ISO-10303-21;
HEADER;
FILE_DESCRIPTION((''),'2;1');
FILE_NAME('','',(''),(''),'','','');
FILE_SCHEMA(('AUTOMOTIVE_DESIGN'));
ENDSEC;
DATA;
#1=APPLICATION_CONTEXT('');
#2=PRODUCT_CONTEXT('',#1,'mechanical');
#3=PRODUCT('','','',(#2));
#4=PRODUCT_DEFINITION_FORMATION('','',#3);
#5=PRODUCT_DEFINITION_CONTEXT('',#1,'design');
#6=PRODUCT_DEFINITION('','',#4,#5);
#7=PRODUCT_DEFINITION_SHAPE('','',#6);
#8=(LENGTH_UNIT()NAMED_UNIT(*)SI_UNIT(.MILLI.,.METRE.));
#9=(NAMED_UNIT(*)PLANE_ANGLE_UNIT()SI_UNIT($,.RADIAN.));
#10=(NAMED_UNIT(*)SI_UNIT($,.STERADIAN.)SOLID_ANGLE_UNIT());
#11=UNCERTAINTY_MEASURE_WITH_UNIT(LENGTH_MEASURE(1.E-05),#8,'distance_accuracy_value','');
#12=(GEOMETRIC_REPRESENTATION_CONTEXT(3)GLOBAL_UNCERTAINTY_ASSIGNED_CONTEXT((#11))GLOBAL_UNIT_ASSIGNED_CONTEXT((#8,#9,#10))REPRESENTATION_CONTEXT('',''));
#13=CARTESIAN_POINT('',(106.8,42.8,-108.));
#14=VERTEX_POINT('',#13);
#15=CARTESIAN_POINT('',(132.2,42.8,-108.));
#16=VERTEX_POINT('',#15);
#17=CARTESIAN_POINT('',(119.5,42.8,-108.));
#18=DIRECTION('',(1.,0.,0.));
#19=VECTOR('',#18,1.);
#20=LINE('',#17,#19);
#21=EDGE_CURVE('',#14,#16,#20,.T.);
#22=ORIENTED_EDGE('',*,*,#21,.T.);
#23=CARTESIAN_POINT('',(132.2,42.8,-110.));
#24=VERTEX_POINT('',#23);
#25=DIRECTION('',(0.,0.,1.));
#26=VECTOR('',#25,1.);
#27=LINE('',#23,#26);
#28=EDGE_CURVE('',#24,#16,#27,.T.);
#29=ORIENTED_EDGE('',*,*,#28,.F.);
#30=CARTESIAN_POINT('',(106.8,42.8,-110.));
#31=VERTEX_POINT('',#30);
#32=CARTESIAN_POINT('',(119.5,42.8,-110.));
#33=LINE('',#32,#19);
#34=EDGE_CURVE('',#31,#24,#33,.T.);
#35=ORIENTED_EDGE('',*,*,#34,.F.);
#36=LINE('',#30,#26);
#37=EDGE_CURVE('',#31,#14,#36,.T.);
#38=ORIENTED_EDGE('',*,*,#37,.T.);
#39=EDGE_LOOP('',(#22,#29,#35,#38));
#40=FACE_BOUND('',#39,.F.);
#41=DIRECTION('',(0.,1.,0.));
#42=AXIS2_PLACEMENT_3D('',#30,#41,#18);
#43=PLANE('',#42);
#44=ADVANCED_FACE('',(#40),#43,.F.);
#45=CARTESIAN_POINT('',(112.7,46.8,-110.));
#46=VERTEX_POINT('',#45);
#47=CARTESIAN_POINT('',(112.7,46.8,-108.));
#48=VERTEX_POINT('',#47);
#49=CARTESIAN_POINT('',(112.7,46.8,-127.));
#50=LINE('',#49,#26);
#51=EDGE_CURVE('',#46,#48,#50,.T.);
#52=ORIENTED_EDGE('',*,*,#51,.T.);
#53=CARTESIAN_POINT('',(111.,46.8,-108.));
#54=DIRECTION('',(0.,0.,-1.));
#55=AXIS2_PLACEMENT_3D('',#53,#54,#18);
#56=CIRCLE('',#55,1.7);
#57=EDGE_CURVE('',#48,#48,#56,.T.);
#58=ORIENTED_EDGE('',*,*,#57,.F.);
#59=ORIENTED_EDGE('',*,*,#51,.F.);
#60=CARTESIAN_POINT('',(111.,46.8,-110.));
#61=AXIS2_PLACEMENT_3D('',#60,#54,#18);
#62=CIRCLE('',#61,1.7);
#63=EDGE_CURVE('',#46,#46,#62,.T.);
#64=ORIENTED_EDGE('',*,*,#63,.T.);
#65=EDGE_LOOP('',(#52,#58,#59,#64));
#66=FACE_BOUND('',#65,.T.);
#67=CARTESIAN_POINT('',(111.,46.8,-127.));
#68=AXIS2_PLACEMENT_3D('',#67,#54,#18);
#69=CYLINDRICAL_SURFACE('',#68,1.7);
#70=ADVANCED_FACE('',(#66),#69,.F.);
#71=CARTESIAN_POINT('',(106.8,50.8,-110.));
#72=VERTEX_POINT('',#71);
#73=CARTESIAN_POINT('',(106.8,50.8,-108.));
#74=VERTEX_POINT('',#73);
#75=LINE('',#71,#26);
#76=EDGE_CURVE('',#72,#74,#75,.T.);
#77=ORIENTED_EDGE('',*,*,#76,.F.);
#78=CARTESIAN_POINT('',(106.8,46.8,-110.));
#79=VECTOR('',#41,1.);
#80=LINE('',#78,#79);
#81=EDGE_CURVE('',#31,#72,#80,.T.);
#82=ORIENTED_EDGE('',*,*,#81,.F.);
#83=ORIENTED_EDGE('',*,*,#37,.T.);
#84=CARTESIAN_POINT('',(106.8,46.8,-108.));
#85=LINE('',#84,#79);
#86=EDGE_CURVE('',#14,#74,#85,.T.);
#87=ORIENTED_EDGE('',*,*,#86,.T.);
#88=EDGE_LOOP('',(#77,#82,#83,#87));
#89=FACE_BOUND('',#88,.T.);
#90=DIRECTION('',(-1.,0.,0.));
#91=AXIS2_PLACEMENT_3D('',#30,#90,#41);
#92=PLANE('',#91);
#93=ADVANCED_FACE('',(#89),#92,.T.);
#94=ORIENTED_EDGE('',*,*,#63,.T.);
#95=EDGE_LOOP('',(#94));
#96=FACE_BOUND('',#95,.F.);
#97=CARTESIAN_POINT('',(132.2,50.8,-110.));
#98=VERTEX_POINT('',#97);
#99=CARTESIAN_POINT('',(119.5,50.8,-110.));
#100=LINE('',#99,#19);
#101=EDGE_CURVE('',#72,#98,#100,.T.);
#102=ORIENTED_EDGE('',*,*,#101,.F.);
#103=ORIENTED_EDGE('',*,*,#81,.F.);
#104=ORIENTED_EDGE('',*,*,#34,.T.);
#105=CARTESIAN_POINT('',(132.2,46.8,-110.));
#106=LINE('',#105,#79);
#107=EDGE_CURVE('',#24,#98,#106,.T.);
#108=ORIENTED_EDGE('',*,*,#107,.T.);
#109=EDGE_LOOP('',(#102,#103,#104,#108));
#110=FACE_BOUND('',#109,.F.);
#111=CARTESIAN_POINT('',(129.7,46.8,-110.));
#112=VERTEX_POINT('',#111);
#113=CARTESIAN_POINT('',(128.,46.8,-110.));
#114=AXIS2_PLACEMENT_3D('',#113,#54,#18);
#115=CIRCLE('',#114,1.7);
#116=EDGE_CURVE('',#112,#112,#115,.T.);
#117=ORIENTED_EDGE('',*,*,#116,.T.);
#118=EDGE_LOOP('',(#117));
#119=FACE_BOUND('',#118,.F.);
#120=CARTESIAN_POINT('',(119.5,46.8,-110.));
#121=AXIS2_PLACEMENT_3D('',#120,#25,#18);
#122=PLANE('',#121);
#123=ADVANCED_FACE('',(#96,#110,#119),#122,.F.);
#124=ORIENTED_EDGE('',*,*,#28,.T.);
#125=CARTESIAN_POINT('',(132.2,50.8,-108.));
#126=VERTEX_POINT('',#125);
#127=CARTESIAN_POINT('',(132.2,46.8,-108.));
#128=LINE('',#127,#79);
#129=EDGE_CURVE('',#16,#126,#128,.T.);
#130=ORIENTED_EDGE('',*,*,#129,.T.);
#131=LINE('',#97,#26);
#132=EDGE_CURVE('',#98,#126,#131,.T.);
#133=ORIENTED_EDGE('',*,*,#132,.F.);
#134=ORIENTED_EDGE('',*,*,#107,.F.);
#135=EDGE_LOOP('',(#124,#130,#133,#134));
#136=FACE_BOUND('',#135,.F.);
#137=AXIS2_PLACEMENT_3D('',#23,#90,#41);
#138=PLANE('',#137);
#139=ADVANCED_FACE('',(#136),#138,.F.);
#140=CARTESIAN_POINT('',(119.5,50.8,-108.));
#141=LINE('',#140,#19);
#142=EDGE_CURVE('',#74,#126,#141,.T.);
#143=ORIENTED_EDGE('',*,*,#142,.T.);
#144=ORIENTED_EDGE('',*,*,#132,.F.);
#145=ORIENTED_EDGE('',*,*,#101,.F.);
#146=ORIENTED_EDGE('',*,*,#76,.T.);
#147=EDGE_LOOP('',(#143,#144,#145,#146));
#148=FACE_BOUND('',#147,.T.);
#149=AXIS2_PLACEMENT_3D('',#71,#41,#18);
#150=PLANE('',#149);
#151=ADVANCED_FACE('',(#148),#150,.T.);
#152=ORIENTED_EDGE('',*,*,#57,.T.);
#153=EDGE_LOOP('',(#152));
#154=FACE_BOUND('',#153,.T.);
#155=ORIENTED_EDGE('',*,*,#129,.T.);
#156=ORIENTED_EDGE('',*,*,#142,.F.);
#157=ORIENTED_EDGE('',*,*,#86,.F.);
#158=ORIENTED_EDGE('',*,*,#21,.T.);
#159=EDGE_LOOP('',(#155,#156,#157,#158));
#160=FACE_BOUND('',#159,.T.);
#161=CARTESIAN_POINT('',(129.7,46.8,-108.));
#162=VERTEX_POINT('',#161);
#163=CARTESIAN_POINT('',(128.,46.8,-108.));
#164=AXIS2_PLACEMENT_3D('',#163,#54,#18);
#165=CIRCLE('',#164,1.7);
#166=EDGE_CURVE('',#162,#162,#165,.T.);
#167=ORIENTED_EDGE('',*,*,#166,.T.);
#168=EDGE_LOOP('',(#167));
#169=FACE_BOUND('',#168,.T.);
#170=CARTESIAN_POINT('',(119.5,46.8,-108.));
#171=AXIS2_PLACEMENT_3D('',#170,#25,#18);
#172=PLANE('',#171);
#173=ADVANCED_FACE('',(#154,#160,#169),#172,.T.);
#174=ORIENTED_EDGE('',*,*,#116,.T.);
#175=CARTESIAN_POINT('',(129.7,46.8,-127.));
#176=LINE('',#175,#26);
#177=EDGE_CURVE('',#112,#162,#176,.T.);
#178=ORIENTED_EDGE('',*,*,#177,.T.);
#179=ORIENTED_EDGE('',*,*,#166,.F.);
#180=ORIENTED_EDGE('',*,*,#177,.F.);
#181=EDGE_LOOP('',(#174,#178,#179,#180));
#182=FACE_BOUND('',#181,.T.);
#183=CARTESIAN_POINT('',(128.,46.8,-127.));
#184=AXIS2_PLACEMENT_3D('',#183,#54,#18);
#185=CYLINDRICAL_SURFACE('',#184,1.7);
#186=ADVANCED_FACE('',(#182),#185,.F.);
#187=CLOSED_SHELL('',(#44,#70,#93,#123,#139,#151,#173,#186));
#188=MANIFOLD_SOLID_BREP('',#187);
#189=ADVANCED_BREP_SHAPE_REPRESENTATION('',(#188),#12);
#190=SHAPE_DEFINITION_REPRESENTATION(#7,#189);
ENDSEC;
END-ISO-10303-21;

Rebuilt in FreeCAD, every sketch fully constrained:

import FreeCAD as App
import Part
import Sketcher

V = App.Vector


def add_polygon(sketch, points):
    """Adds a closed chain of lines whose ends are joined by coincident constraints."""
    first, n = sketch.GeometryCount, len(points)
    for a, b in zip(points, points[1:] + points[:1]):
        sketch.addGeometry(Part.LineSegment(App.Vector(*a, 0), App.Vector(*b, 0)), False)
    for i in range(n):
        sketch.addConstraint(Sketcher.Constraint("Coincident", first + i, 2, first + (i + 1) % n, 1))

doc = App.newDocument("Part")
body = doc.addObject("PartDesign::Body", "Body")

sketch1 = body.newObject("Sketcher::SketchObject", "Sketch")
sketch1.AttachmentSupport = (doc.getObject("XY_Plane"), [""])
sketch1.MapMode = "FlatFace"
sketch1.AttachmentOffset = App.Placement(V(0, 0, -127), App.Rotation())
sketch1.addGeometry(Part.Circle(V(128, 46.8, 0), V(0, 0, 1), 1.7), False)
sketch1.addConstraint(Sketcher.Constraint("Diameter", 0, 3.4))
sketch1.addConstraint(Sketcher.Constraint("DistanceX", -1, 1, 0, 3, 128.0))
sketch1.addConstraint(Sketcher.Constraint("DistanceY", -1, 1, 0, 3, 46.8))
pad1 = body.newObject("PartDesign::Pad", "Pad")
pad1.Profile = sketch1
pad1.Length = 30
body2 = doc.addObject("PartDesign::Body", "Body001")

sketch2 = body2.newObject("Sketcher::SketchObject", "Sketch001")
sketch2.AttachmentSupport = (doc.getObject("XY_Plane001"), [""])
sketch2.MapMode = "FlatFace"
sketch2.AttachmentOffset = App.Placement(V(0, 0, -127), App.Rotation())
sketch2.addGeometry(Part.Circle(V(111, 46.8, 0), V(0, 0, 1), 1.7), False)
sketch2.addConstraint(Sketcher.Constraint("Diameter", 0, 3.4))
sketch2.addConstraint(Sketcher.Constraint("DistanceX", -1, 1, 0, 3, 111.0))
sketch2.addConstraint(Sketcher.Constraint("DistanceY", -1, 1, 0, 3, 46.8))
pad2 = body2.newObject("PartDesign::Pad", "Pad001")
pad2.Profile = sketch2
pad2.Length = 30
body3 = doc.addObject("PartDesign::Body", "Body002")

sketch3 = body3.newObject("Sketcher::SketchObject", "Sketch002")
sketch3.AttachmentSupport = (doc.getObject("XY_Plane002"), [""])
sketch3.MapMode = "FlatFace"
sketch3.AttachmentOffset = App.Placement(V(0, 0, -110), App.Rotation())
add_polygon(sketch3, [(107, 51), (107, 43), (132, 43), (132, 51)])
sketch3.addConstraint(Sketcher.Constraint("Vertical", 0))
sketch3.addConstraint(Sketcher.Constraint("Horizontal", 1))
sketch3.addConstraint(Sketcher.Constraint("Vertical", 2))
sketch3.addConstraint(Sketcher.Constraint("Horizontal", 3))
sketch3.addConstraint(Sketcher.Constraint("DistanceY", 0, 2, 0, 1, 8.0))
sketch3.addConstraint(Sketcher.Constraint("DistanceX", 1, 1, 1, 2, 25.4))
sketch3.addConstraint(Sketcher.Constraint("DistanceX", -1, 1, 0, 2, 106.8))
sketch3.addConstraint(Sketcher.Constraint("DistanceY", -1, 1, 0, 2, 42.8))
pad3 = body3.newObject("PartDesign::Pad", "Pad002")
pad3.Profile = sketch3
pad3.Length = 2
doc.recompute()

boolean = body3.newObject("PartDesign::Boolean", "Boolean")
boolean.Type = "Cut"
boolean.addObjects([body2])
doc.recompute()

boolean2 = body3.newObject("PartDesign::Boolean", "Boolean001")
boolean2.Type = "Cut"
boolean2.addObjects([body])

doc.recompute()
